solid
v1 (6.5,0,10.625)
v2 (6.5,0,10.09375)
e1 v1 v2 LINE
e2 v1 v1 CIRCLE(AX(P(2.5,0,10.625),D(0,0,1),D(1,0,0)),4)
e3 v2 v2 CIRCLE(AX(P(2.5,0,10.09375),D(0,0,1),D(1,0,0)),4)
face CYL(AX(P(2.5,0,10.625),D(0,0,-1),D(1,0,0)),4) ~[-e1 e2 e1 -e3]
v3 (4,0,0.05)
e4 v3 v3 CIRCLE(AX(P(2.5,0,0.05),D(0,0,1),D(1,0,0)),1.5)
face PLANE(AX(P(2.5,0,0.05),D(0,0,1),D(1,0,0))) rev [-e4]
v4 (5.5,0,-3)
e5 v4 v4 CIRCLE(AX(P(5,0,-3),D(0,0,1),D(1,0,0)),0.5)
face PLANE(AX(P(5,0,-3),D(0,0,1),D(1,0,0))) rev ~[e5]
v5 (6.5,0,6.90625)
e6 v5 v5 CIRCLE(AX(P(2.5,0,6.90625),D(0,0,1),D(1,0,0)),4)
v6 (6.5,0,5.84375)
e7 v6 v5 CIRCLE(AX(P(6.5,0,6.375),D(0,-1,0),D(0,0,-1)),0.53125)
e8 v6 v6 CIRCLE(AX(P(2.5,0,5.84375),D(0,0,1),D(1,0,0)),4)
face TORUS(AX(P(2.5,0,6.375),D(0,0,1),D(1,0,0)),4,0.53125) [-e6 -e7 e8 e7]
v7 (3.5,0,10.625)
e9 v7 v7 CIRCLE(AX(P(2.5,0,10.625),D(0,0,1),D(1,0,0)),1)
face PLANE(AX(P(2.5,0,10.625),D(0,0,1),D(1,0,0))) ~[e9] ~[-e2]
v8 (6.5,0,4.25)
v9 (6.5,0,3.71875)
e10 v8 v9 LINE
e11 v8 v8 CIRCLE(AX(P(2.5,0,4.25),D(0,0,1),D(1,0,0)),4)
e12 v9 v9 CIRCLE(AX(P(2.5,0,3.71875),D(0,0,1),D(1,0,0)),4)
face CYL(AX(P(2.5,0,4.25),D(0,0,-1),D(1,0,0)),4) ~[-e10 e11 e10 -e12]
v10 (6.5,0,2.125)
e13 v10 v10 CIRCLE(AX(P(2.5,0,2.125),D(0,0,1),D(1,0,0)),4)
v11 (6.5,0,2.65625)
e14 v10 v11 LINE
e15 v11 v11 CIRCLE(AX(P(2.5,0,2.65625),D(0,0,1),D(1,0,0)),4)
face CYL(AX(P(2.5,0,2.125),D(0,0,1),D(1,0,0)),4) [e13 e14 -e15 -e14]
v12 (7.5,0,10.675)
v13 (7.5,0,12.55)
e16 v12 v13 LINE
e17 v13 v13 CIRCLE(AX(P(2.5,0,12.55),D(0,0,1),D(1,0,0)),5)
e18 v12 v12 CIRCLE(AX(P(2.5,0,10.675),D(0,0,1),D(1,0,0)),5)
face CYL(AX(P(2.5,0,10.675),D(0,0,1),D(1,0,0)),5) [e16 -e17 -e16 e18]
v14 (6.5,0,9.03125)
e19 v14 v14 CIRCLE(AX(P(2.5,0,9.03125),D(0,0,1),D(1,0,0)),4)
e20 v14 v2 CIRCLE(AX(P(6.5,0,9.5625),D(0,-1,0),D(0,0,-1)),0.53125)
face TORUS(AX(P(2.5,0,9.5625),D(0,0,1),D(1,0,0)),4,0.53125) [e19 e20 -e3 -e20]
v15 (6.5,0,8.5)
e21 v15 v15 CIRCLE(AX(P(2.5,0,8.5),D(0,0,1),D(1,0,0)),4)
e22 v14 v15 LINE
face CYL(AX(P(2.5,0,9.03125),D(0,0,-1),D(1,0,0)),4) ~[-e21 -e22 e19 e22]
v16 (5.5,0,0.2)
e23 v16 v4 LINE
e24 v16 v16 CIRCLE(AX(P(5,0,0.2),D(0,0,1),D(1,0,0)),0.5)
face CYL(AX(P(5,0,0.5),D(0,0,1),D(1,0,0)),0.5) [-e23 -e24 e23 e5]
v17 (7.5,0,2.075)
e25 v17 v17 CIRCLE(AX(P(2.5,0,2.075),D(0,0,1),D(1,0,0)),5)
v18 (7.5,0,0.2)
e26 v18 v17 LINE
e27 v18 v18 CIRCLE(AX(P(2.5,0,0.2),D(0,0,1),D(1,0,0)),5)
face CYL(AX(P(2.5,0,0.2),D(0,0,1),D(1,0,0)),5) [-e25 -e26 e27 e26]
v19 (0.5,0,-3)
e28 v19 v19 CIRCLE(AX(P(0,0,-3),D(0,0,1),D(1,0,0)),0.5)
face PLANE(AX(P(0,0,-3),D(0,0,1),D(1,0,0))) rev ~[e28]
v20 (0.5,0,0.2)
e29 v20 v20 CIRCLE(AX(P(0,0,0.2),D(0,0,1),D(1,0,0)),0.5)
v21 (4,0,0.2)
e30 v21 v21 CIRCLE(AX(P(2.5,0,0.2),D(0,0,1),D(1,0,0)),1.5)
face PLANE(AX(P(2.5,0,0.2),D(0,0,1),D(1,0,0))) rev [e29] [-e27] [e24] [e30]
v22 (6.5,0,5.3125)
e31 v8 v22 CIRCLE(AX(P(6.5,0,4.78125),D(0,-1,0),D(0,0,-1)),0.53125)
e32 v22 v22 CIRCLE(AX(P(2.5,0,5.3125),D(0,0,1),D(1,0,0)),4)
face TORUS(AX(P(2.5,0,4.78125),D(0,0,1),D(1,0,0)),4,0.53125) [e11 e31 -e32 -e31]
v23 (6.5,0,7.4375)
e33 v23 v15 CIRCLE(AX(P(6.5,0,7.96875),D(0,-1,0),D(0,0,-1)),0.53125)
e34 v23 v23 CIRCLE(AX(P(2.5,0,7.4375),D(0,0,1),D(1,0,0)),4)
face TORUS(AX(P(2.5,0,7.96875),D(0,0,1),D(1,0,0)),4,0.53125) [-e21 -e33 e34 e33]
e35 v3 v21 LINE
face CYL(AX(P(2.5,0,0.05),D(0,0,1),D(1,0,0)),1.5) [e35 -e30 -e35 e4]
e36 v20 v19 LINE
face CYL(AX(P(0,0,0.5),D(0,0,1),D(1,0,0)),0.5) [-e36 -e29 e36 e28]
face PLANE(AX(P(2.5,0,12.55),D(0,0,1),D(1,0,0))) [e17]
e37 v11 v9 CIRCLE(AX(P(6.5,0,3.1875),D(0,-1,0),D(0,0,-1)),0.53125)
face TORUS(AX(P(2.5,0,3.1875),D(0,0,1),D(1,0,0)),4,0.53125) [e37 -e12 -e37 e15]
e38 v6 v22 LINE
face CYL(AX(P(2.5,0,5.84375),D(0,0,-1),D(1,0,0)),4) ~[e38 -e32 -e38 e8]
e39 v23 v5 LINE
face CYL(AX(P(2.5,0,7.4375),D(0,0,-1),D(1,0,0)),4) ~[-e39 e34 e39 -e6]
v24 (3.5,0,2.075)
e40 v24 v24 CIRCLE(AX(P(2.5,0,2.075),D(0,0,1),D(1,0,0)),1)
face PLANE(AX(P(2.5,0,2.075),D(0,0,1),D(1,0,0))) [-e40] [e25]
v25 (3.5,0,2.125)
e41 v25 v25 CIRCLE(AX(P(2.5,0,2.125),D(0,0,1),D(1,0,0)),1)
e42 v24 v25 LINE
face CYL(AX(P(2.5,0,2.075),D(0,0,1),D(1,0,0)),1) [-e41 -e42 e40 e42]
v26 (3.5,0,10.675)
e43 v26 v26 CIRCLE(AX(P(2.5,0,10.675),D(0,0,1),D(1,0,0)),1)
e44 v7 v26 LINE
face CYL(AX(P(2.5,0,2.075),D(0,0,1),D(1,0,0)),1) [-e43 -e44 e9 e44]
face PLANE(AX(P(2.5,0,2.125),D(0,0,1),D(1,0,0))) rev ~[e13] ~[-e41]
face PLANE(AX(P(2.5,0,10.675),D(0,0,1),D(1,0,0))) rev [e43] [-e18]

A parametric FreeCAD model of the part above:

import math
import FreeCAD as App
import Part
import Sketcher

V = App.Vector


def add_polygon(sketch, points):
    """Adds a closed chain of lines whose ends are joined by coincident constraints."""
    first, n = sketch.GeometryCount, len(points)
    for a, b in zip(points, points[1:] + points[:1]):
        sketch.addGeometry(Part.LineSegment(App.Vector(*a, 0), App.Vector(*b, 0)), False)
    for i in range(n):
        sketch.addConstraint(Sketcher.Constraint("Coincident", first + i, 2, first + (i + 1) % n, 1))

doc = App.newDocument("Part")
body = doc.addObject("PartDesign::Body", "Body")

# Sketch on XZ plane
sketch1 = body.newObject("Sketcher::SketchObject", "Sketch")
sketch1.AttachmentSupport = (doc.getObject("XZ_Plane"), [""])
sketch1.MapMode = "FlatFace"
add_polygon(sketch1, [(2.5, 0.05), (4, 0.05), (4, 0.2), (7.5, 0.2), (7.5, 2.08), (3.5, 2.08), (3.5, 10.68), (7.5, 10.68), (7.5, 12.55), (2.5, 12.55)])  # lines 0-9
sketch1.addGeometry(Part.LineSegment(V(2.5, 0.05, 0), V(2.5, 12.55, 0)), True)  # axis
sketch1.addConstraint([
    Sketcher.Constraint("Horizontal", 0),
    Sketcher.Constraint("Vertical", 1),
    Sketcher.Constraint("Horizontal", 2),
    Sketcher.Constraint("Vertical", 3),
    Sketcher.Constraint("Horizontal", 4),
    Sketcher.Constraint("Vertical", 5),
    Sketcher.Constraint("Horizontal", 6),
    Sketcher.Constraint("Vertical", 7),
    Sketcher.Constraint("Horizontal", 8),
    Sketcher.Constraint("Vertical", 9),
    Sketcher.Constraint("Vertical", 10),
    Sketcher.Constraint("Coincident", 10, 1, 9, 2),
    Sketcher.Constraint("Horizontal", 7, 2, 10, 2),
    Sketcher.Constraint("Vertical", 3, 2, 6, 2),
    Sketcher.Constraint("Equal", 3, 7),
    Sketcher.Constraint("DistanceX", 4, 2, 4, 1, 4.0),
    Sketcher.Constraint("DistanceX", 8, 2, 8, 1, 5.0),
    Sketcher.Constraint("DistanceX", 0, 1, 0, 2, 1.5),
    Sketcher.Constraint("DistanceY", 5, 1, 5, 2, 8.6),
    Sketcher.Constraint("DistanceY", 9, 2, 9, 1, 12.5),
    Sketcher.Constraint("DistanceX", -1, 1, 0, 2, 4.0),
    Sketcher.Constraint("DistanceY", 1, 1, 1, 2, 0.15),
    Sketcher.Constraint("DistanceY", -1, 1, 1, 2, 0.2),
])
revolution = body.newObject("PartDesign::Revolution", "Revolution")
revolution.Profile = sketch1
revolution.ReferenceAxis = (sketch1, ["Axis0"])
revolution.Angle = 360
body2 = doc.addObject("PartDesign::Body", "Body001")
body2.AllowCompound = True

# Sketch on XY plane
sketch2 = body2.newObject("Sketcher::SketchObject", "Sketch001")
sketch2.AttachmentSupport = (doc.getObject("XY_Plane001"), [""])
sketch2.MapMode = "FlatFace"
sketch2.AttachmentOffset = App.Placement(V(0, 0, 0.5), App.Rotation())
sketch2.addGeometry([
    Part.Circle(V(0, 0, 0), V(0, 0, 1), 0.5),
    Part.Circle(V(5, 0, 0), V(0, 0, 1), 0.5),
], False)
sketch2.addConstraint([
    Sketcher.Constraint("Coincident", 0, 3, -1, 1),
    Sketcher.Constraint("Equal", 0, 1),
    Sketcher.Constraint("PointOnObject", 1, 3, -1),
    Sketcher.Constraint("Diameter", 0, 1.0),
    Sketcher.Constraint("DistanceX", -1, 1, 1, 3, 5.0),
])
pad1 = body2.newObject("PartDesign::Pad", "Pad")
pad1.Profile = sketch2
pad1.Length = 3.5
pad1.Reversed = True
body3 = doc.addObject("PartDesign::Body", "Body002")

# Sketch on XZ plane
sketch3 = body3.newObject("Sketcher::SketchObject", "Sketch002")
sketch3.AttachmentSupport = (doc.getObject("XZ_Plane002"), [""])
sketch3.MapMode = "FlatFace"
sketch3.addGeometry([
    Part.LineSegment(V(3.5, 2.1, 0), V(6.5, 2.1, 0)),  # 0
    Part.LineSegment(V(6.5, 2.1, 0), V(6.5, 2.7, 0)),  # 1
    Part.ArcOfCircle(Part.Circle(V(6.5, 3.2, 0), V(0, 0, 1), 0.5), math.radians(-90), math.radians(90)),  # 2
    Part.LineSegment(V(6.5, 3.7, 0), V(6.5, 4.2, 0)),  # 3
    Part.ArcOfCircle(Part.Circle(V(6.5, 4.8, 0), V(0, 0, 1), 0.5), math.radians(-90), math.radians(90)),  # 4
    Part.LineSegment(V(6.5, 5.3, 0), V(6.5, 5.8, 0)),  # 5
    Part.ArcOfCircle(Part.Circle(V(6.5, 6.4, 0), V(0, 0, 1), 0.5), math.radians(-90), math.radians(90)),  # 6
    Part.LineSegment(V(6.5, 6.9, 0), V(6.5, 7.4, 0)),  # 7
    Part.ArcOfCircle(Part.Circle(V(6.5, 8, 0), V(0, 0, 1), 0.5), math.radians(-90), math.radians(90)),  # 8
    Part.LineSegment(V(6.5, 8.5, 0), V(6.5, 9, 0)),  # 9
    Part.ArcOfCircle(Part.Circle(V(6.5, 9.6, 0), V(0, 0, 1), 0.5), math.radians(-90), math.radians(90)),  # 10
    Part.LineSegment(V(6.5, 10.1, 0), V(6.5, 10.6, 0)),  # 11
    Part.LineSegment(V(6.5, 10.6, 0), V(3.5, 10.6, 0)),  # 12
    Part.LineSegment(V(3.5, 10.6, 0), V(3.5, 2.1, 0)),  # 13
], False)
sketch3.addGeometry(Part.LineSegment(V(2.5, 2.1, 0), V(2.5, 10.6, 0)), True)  # axis
sketch3.addConstraint([
    Sketcher.Constraint("Coincident", 0, 2, 1, 1),
    Sketcher.Constraint("Coincident", 1, 2, 2, 1),
    Sketcher.Constraint("Coincident", 2, 2, 3, 1),
    Sketcher.Constraint("Coincident", 3, 2, 4, 1),
    Sketcher.Constraint("Coincident", 4, 2, 5, 1),
    Sketcher.Constraint("Coincident", 5, 2, 6, 1),
    Sketcher.Constraint("Coincident", 6, 2, 7, 1),
    Sketcher.Constraint("Coincident", 7, 2, 8, 1),
    Sketcher.Constraint("Coincident", 8, 2, 9, 1),
    Sketcher.Constraint("Coincident", 9, 2, 10, 1),
    Sketcher.Constraint("Coincident", 10, 2, 11, 1),
    Sketcher.Constraint("Coincident", 11, 2, 12, 1),
    Sketcher.Constraint("Coincident", 12, 2, 13, 1),
    Sketcher.Constraint("Coincident", 13, 2, 0, 1),
    Sketcher.Constraint("Horizontal", 0),
    Sketcher.Constraint("Vertical", 1),
    Sketcher.Constraint("Vertical", 3),
    Sketcher.Constraint("Vertical", 5),
    Sketcher.Constraint("Vertical", 7),
    Sketcher.Constraint("Vertical", 9),
    Sketcher.Constraint("Vertical", 11),
    Sketcher.Constraint("Horizontal", 12),
    Sketcher.Constraint("Vertical", 13),
    Sketcher.Constraint("Vertical", 14),
    Sketcher.Constraint("Equal", 2, 4),
    Sketcher.Constraint("Equal", 4, 6),
    Sketcher.Constraint("Equal", 6, 8),
    Sketcher.Constraint("Equal", 8, 10),
    Sketcher.Constraint("Horizontal", 13, 2, 14, 1),
    Sketcher.Constraint("Horizontal", 12, 2, 14, 2),
    Sketcher.Constraint("Vertical", 2, 3, 4, 3),
    Sketcher.Constraint("Vertical", 4, 3, 6, 3),
    Sketcher.Constraint("Vertical", 6, 3, 8, 3),
    Sketcher.Constraint("Vertical", 8, 3, 10, 3),
    Sketcher.Constraint("Vertical", 10, 3, 0, 2),
    Sketcher.Constraint("Vertical", 1, 2, 2, 2),
    Sketcher.Constraint("Vertical", 3, 2, 4, 2),
    Sketcher.Constraint("Vertical", 5, 2, 6, 2),
    Sketcher.Constraint("Vertical", 7, 2, 8, 2),
    Sketcher.Constraint("Vertical", 9, 2, 10, 2),
    Sketcher.Constraint("Equal", 1, 3),
    Sketcher.Constraint("Equal", 3, 5),
    Sketcher.Constraint("Equal", 5, 7),
    Sketcher.Constraint("Equal", 7, 9),
    Sketcher.Constraint("Equal", 9, 11),
    Sketcher.Constraint("DistanceX", 0, 1, 0, 2, 3.0),
    Sketcher.Constraint("DistanceY", 13, 2, 13, 1, 8.5),
    Sketcher.Constraint("DistanceX", 14, 1, 13, 2, 1.0),
    Sketcher.Constraint("DistanceX", -1, 1, 2, 3, 6.5),
    Sketcher.Constraint("DistanceY", -1, 1, 8, 2, 8.5),
    Sketcher.Constraint("DistanceY", -1, 1, 3, 2, 4.25),
])
revolution2 = body3.newObject("PartDesign::Revolution", "Revolution001")
revolution2.Profile = sketch3
revolution2.ReferenceAxis = (sketch3, ["Axis0"])
revolution2.Angle = 360
doc.recompute()

boolean = body3.newObject("PartDesign::Boolean", "Boolean")
boolean.Type = "Fuse"
boolean.addObjects([body])
doc.recompute()

boolean2 = body3.newObject("PartDesign::Boolean", "Boolean001")
boolean2.Type = "Fuse"
boolean2.addObjects([body2])

doc.recompute()
